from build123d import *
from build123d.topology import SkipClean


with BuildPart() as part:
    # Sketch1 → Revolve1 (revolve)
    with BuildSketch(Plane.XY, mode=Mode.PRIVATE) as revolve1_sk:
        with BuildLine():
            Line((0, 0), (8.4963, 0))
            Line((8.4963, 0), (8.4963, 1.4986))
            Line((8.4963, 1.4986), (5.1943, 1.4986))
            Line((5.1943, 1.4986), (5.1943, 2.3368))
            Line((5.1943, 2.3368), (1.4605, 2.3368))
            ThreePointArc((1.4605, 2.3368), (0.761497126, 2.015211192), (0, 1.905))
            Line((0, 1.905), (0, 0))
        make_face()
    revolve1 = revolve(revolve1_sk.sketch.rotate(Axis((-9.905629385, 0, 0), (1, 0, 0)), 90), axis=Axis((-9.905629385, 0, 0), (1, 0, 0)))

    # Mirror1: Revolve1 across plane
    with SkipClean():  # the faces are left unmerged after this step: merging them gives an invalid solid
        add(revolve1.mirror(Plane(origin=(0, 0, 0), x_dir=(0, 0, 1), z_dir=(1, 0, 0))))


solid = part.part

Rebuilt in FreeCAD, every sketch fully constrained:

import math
import FreeCAD as App
import Part
import Sketcher

V = App.Vector
Q = App.Units.Quantity

doc = App.newDocument("Part")
body = doc.addObject("PartDesign::Body", "Body")

# Sketch on XY plane
sketch1 = body.newObject("Sketcher::SketchObject", "Sketch")
sketch1.AttachmentSupport = (doc.getObject("XY_Plane"), [""])
sketch1.MapMode = "FlatFace"
sketch1.addGeometry(Part.LineSegment(V(0, 0, 0), V(8.4963, 0, 0)), False)
sketch1.addGeometry(Part.LineSegment(V(8.4963, 0, 0), V(8.4963, 1.4986, 0)), False)
sketch1.addGeometry(Part.LineSegment(V(8.4963, 1.4986, 0), V(5.1943, 1.4986, 0)), False)
sketch1.addGeometry(Part.LineSegment(V(5.1943, 1.4986, 0), V(5.1943, 2.3368, 0)), False)
sketch1.addGeometry(Part.LineSegment(V(5.1943, 2.3368, 0), V(1.4605, 2.3368, 0)), False)
sketch1.addGeometry(Part.ArcOfCircle(Part.Circle(V(0, 4.590863, 0), V(0, 0, 1), 2.685863), math.radians(-90), math.radians(-57.059143)), False)
sketch1.addGeometry(Part.LineSegment(V(0, 1.905, 0), V(0, 0, 0)), False)
sketch1.addConstraint(Sketcher.Constraint("Coincident", 0, 2, 1, 1))
sketch1.addConstraint(Sketcher.Constraint("Coincident", 1, 2, 2, 1))
sketch1.addConstraint(Sketcher.Constraint("Coincident", 2, 2, 3, 1))
sketch1.addConstraint(Sketcher.Constraint("Coincident", 3, 2, 4, 1))
sketch1.addConstraint(Sketcher.Constraint("Coincident", 4, 2, 5, 2))
sketch1.addConstraint(Sketcher.Constraint("Coincident", 5, 1, 6, 1))
sketch1.addConstraint(Sketcher.Constraint("Coincident", 6, 2, 0, 1))
sketch1.addConstraint(Sketcher.Constraint("Horizontal", 0))
sketch1.addConstraint(Sketcher.Constraint("Vertical", 1))
sketch1.addConstraint(Sketcher.Constraint("Horizontal", 2))
sketch1.addConstraint(Sketcher.Constraint("Vertical", 3))
sketch1.addConstraint(Sketcher.Constraint("Horizontal", 4))
sketch1.addConstraint(Sketcher.Constraint("Vertical", 6))
sketch1.addConstraint(Sketcher.Constraint("Coincident", 6, 2, -1, 1))
sketch1.addConstraint(Sketcher.Constraint("PointOnObject", 5, 3, -2))
sketch1.addConstraint(Sketcher.Constraint("DistanceX", 2, 2, 2, 1, Q("0.13 in")))
sketch1.addConstraint(Sketcher.Constraint("DistanceX", 4, 2, 4, 1, Q("0.147 in")))
sketch1.addConstraint(Sketcher.Constraint("DistanceY", 1, 1, 1, 2, Q("0.059 in")))
sketch1.addConstraint(Sketcher.Constraint("DistanceY", 3, 1, 3, 2, Q("0.033 in")))
sketch1.addConstraint(Sketcher.Constraint("DistanceY", 6, 2, 6, 1, Q("0.075 in")))
sketch1.addConstraint(Sketcher.Constraint("DistanceX", 0, 1, 0, 2, Q("0.3345 in")))
revolution = body.newObject("PartDesign::Revolution", "Revolution")
revolution.Profile = sketch1
revolution.ReferenceAxis = (sketch1, ["H_Axis"])
revolution.Angle = 360
doc.recompute()

mirrored = body.newObject("PartDesign::Mirrored", "Mirrored")
mirrored.Originals = [revolution]
mirrored.MirrorPlane = (doc.getObject("YZ_Plane"), [""])
body.Tip = mirrored

doc.recompute()
